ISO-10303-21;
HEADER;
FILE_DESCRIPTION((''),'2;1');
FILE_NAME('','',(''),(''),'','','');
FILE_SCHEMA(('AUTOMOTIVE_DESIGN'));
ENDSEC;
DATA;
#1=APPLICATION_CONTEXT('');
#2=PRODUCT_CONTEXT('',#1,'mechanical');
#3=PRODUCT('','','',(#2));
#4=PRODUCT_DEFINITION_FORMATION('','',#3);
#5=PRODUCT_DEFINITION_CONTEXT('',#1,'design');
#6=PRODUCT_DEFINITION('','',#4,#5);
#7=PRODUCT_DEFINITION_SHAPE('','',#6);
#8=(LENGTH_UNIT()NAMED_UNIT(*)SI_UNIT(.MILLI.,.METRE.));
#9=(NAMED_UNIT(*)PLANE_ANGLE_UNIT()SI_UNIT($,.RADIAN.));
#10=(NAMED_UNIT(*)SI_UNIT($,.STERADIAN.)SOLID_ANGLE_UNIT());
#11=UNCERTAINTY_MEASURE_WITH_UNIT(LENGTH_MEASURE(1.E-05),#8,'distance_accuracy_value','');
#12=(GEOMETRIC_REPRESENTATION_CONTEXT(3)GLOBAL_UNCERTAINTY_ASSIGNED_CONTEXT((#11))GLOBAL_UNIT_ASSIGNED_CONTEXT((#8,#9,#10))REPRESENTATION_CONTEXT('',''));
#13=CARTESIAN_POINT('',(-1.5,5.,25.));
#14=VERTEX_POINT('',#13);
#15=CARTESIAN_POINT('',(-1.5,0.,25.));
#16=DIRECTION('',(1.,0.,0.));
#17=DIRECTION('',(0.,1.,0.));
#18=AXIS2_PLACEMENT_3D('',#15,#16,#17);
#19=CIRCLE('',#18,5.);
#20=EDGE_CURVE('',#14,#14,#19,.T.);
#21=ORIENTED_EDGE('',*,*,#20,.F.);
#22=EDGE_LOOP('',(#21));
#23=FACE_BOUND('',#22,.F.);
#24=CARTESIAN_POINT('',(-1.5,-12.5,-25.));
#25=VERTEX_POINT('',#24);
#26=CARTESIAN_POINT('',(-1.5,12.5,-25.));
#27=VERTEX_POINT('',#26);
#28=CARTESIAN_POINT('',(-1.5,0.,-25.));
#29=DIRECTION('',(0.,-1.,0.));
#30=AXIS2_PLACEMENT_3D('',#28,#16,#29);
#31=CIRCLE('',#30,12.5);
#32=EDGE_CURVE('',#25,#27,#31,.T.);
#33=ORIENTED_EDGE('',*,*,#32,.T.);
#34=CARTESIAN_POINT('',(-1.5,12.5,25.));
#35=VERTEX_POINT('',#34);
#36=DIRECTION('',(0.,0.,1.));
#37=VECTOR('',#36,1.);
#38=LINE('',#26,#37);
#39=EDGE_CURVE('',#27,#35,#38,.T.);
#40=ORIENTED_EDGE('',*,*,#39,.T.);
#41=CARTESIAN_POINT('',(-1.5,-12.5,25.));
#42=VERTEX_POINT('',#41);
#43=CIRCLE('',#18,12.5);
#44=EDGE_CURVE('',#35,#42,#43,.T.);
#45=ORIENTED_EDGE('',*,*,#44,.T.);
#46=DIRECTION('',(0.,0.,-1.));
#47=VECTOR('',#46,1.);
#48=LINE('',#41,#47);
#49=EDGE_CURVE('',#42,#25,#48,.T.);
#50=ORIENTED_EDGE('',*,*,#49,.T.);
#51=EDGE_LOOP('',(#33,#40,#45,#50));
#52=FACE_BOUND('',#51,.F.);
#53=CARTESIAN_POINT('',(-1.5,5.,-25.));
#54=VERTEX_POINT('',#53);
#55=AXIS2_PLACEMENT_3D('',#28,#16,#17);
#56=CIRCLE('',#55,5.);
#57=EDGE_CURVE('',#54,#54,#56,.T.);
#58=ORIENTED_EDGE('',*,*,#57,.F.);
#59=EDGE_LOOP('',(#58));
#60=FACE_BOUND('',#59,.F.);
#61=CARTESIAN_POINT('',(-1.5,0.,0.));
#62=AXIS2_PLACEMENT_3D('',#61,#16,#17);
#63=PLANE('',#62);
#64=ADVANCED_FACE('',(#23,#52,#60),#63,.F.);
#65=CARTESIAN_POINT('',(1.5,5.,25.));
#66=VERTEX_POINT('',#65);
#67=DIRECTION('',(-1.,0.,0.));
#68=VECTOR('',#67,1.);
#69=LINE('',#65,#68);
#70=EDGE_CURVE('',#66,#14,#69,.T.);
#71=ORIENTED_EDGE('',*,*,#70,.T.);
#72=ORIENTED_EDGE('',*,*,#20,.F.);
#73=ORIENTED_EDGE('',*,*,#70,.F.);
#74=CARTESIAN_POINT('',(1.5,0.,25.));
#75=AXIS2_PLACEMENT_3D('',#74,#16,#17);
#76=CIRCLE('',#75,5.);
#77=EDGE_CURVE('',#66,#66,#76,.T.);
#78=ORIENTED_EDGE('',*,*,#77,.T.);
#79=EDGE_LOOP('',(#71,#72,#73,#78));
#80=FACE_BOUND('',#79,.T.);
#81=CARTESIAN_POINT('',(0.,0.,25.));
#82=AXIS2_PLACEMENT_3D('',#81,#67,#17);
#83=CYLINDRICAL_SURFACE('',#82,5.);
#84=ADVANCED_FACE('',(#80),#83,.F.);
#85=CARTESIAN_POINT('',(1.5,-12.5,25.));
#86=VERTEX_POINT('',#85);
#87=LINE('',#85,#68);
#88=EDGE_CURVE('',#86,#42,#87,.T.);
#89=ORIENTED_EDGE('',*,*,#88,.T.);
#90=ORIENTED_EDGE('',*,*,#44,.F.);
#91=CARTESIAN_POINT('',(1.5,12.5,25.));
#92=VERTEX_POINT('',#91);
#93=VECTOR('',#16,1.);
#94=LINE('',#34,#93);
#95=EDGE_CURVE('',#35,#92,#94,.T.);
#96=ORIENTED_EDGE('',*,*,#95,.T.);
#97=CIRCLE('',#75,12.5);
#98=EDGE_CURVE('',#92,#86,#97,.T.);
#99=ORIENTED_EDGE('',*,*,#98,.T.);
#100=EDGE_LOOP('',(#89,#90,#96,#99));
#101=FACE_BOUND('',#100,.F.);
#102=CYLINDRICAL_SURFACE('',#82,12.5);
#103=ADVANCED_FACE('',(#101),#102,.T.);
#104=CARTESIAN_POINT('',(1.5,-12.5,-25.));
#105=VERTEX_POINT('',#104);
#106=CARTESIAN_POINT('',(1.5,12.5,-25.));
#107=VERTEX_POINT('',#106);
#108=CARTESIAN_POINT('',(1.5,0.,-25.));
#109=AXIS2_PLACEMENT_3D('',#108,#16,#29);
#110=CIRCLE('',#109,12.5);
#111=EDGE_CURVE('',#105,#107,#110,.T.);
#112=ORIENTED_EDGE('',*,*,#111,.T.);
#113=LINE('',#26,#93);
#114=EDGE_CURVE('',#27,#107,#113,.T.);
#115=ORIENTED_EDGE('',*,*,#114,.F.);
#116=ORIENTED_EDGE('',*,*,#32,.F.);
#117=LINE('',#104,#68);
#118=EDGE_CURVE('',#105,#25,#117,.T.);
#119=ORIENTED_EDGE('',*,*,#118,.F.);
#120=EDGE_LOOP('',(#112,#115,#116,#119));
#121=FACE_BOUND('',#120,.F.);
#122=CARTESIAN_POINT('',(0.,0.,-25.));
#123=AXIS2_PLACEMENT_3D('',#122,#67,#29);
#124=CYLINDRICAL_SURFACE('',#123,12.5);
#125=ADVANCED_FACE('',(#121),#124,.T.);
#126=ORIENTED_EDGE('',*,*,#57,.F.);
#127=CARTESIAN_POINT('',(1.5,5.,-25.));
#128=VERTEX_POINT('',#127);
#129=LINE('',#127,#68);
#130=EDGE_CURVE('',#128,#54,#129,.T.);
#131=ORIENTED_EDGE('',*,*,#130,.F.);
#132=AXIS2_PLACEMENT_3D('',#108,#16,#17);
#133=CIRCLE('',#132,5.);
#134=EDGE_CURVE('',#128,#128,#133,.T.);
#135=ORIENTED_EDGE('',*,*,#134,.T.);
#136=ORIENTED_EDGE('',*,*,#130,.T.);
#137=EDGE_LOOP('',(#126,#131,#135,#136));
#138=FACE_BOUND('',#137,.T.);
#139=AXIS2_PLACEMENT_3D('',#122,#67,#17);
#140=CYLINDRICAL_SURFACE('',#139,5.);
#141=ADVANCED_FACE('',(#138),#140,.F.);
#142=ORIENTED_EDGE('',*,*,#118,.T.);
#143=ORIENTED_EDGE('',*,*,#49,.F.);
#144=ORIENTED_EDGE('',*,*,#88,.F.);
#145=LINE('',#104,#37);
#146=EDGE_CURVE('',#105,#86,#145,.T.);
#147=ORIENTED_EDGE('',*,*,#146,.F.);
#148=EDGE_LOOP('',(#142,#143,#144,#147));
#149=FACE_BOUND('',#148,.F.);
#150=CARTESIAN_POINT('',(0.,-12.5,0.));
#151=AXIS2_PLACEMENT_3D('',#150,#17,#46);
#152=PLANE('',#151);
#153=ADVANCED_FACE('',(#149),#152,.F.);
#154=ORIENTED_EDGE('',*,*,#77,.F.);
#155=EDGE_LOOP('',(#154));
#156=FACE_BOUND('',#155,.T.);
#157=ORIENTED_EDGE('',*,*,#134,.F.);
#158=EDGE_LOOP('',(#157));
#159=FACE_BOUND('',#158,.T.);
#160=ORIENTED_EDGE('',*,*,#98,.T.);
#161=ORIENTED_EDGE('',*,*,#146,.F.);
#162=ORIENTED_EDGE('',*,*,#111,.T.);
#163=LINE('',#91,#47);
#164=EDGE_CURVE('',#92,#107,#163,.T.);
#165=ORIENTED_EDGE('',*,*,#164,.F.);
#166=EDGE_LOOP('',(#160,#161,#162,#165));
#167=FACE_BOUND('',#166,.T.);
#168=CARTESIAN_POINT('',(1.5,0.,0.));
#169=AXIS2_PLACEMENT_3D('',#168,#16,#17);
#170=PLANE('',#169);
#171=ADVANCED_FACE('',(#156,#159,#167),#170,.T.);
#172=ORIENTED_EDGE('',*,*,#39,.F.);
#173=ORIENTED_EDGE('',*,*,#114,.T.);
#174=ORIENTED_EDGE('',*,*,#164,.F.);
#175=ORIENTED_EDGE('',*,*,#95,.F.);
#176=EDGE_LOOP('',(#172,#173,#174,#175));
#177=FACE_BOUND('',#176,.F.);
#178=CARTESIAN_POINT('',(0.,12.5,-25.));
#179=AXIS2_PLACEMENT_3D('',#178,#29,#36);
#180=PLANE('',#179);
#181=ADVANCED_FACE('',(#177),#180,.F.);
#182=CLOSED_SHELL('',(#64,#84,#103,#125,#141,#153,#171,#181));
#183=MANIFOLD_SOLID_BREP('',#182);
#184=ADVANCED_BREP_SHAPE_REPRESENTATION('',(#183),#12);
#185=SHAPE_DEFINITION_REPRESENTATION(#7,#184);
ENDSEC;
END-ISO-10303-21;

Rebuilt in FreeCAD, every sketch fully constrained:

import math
import FreeCAD as App
import Part
import Sketcher
from FreeCAD import Vector
Q = App.Units.Quantity

doc = App.newDocument("Part")
body = doc.addObject("PartDesign::Body", "Body")

# Sketch on YZ plane
sketch1 = doc.addObject("Sketcher::SketchObject", "Sketch")
body.addObject(sketch1)
sketch1.AttachmentSupport = (doc.YZ_Plane, [""])
sketch1.MapMode = "FlatFace"
sketch1.addGeometry([
    Part.ArcOfCircle(Part.Circle(Vector(0, -25, 0), Vector(0, 0, 1), 12.5), math.radians(180), math.radians(360)),  # 0
    Part.LineSegment(Vector(12.5, -25, 0), Vector(12.5, 25, 0)),  # 1
    Part.ArcOfCircle(Part.Circle(Vector(0, 25, 0), Vector(0, 0, 1), 12.5), math.radians(0), math.radians(180)),  # 2
    Part.LineSegment(Vector(-12.5, 25, 0), Vector(-12.5, -25, 0)),  # 3
    Part.Circle(Vector(0, -25, 0), Vector(0, 0, 1), 5),  # 4
    Part.Circle(Vector(0, 25, 0), Vector(0, 0, 1), 5),  # 5
], False)
sketch1.addConstraint([
    Sketcher.Constraint("Tangent", 0, 2, 1, 1),
    Sketcher.Constraint("Tangent", 1, 2, 2, 1),
    Sketcher.Constraint("Tangent", 2, 2, 3, 1),
    Sketcher.Constraint("Tangent", 3, 2, 0, 1),
    Sketcher.Constraint("Vertical", 1),
    Sketcher.Constraint("Vertical", 3),
    Sketcher.Constraint("Coincident", 4, 3, 0, 3),
    Sketcher.Constraint("Coincident", 5, 3, 2, 3),
    Sketcher.Constraint("Equal", 4, 5),
    Sketcher.Constraint("Symmetric", 0, 3, 2, 3, -1, 1),
    Sketcher.Constraint("Diameter", 4, Q("10 mm")),
    Sketcher.Constraint("Radius", 0, Q("12.5 mm")),
    Sketcher.Constraint("DistanceY", 1, 1, 1, 2, Q("50 mm")),
])
pad1 = doc.addObject("PartDesign::Pad", "Pad")
body.addObject(pad1)
pad1.Profile = sketch1
pad1.Length = 3
pad1.Midplane = True

doc.recompute()
